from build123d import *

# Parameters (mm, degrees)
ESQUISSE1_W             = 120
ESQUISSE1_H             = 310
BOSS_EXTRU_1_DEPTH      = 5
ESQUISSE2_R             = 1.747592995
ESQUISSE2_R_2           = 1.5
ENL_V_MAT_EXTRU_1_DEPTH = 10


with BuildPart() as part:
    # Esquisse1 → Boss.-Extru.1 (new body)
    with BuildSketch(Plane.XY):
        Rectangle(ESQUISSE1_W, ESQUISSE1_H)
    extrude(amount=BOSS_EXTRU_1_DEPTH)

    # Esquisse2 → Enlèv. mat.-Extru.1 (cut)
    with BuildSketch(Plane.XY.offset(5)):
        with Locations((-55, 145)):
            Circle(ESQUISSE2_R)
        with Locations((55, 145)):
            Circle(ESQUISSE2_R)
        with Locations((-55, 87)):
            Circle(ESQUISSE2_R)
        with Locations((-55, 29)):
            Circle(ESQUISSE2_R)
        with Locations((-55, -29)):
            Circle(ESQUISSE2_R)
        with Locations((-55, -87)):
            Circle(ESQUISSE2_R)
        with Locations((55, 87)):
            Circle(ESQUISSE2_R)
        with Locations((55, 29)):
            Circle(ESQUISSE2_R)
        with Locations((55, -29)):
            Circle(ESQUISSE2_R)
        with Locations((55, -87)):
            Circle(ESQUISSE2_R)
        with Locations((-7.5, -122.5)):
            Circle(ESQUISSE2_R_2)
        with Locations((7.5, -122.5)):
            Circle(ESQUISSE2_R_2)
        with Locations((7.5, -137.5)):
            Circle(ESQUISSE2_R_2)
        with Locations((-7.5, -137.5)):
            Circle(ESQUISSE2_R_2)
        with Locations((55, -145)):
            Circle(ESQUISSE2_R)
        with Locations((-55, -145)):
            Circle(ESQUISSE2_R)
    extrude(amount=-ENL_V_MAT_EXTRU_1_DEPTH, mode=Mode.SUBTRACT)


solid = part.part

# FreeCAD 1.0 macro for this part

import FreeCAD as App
import Part
import Sketcher

V = App.Vector


def add_polygon(sketch, points):
    """Adds a closed chain of lines whose ends are joined by coincident constraints."""
    first, n = sketch.GeometryCount, len(points)
    for a, b in zip(points, points[1:] + points[:1]):
        sketch.addGeometry(Part.LineSegment(App.Vector(*a, 0), App.Vector(*b, 0)), False)
    for i in range(n):
        sketch.addConstraint(Sketcher.Constraint("Coincident", first + i, 2, first + (i + 1) % n, 1))

doc = App.newDocument("Part")
body = doc.addObject("PartDesign::Body", "Body")

# Sketch on XY plane
sketch1 = body.newObject("Sketcher::SketchObject", "Sketch")
sketch1.AttachmentSupport = (doc.getObject("XY_Plane"), [""])
sketch1.MapMode = "FlatFace"
add_polygon(sketch1, [(-60, 155), (-60, -155), (60, -155), (60, 155)])  # lines 0-3
sketch1.addConstraint([
    Sketcher.Constraint("Vertical", 0),
    Sketcher.Constraint("Horizontal", 1),
    Sketcher.Constraint("Vertical", 2),
    Sketcher.Constraint("Horizontal", 3),
    Sketcher.Constraint("Symmetric", 0, 2, 2, 2, -1, 1),
    Sketcher.Constraint("DistanceX", 1, 1, 1, 2, 120.0),
    Sketcher.Constraint("DistanceY", 0, 2, 0, 1, 310.0),
])
pad1 = body.newObject("PartDesign::Pad", "Pad")
pad1.Profile = sketch1
pad1.Length = 5

# Sketch on XY plane
sketch2 = body.newObject("Sketcher::SketchObject", "Sketch001")
sketch2.AttachmentSupport = (doc.getObject("XY_Plane"), [""])
sketch2.MapMode = "FlatFace"
sketch2.AttachmentOffset = App.Placement(V(0, 0, 5), App.Rotation())
sketch2.addGeometry([
    Part.Circle(V(-55, 145, 0), V(0, 0, 1), 1.7),  # 0
    Part.Circle(V(55, 145, 0), V(0, 0, 1), 1.7),  # 1
    Part.Circle(V(-55, 87, 0), V(0, 0, 1), 1.7),  # 2
    Part.Circle(V(-55, 29, 0), V(0, 0, 1), 1.7),  # 3
    Part.Circle(V(-55, -29, 0), V(0, 0, 1), 1.7),  # 4
    Part.Circle(V(-55, -87, 0), V(0, 0, 1), 1.7),  # 5
    Part.Circle(V(55, 87, 0), V(0, 0, 1), 1.7),  # 6
    Part.Circle(V(55, 29, 0), V(0, 0, 1), 1.7),  # 7
    Part.Circle(V(55, -29, 0), V(0, 0, 1), 1.7),  # 8
    Part.Circle(V(55, -87, 0), V(0, 0, 1), 1.7),  # 9
    Part.Circle(V(-7.5, -122.5, 0), V(0, 0, 1), 1.5),  # 10
    Part.Circle(V(7.5, -122.5, 0), V(0, 0, 1), 1.5),  # 11
    Part.Circle(V(7.5, -137.5, 0), V(0, 0, 1), 1.5),  # 12
    Part.Circle(V(-7.5, -137.5, 0), V(0, 0, 1), 1.5),  # 13
    Part.Circle(V(55, -145, 0), V(0, 0, 1), 1.7),  # 14
    Part.Circle(V(-55, -145, 0), V(0, 0, 1), 1.7),  # 15
], False)
sketch2.addConstraint([
    Sketcher.Constraint("Equal", 0, 1),
    Sketcher.Constraint("Equal", 1, 2),
    Sketcher.Constraint("Equal", 2, 3),
    Sketcher.Constraint("Equal", 3, 4),
    Sketcher.Constraint("Equal", 4, 5),
    Sketcher.Constraint("Equal", 5, 6),
    Sketcher.Constraint("Equal", 6, 7),
    Sketcher.Constraint("Equal", 7, 8),
    Sketcher.Constraint("Equal", 8, 9),
    Sketcher.Constraint("Equal", 10, 11),
    Sketcher.Constraint("Equal", 11, 12),
    Sketcher.Constraint("Equal", 12, 13),
    Sketcher.Constraint("Equal", 9, 14),
    Sketcher.Constraint("Equal", 14, 15),
    Sketcher.Constraint("Symmetric", 5, 3, 6, 3, -1, 1),
    Sketcher.Constraint("Symmetric", 4, 3, 7, 3, -1, 1),
    Sketcher.Constraint("Symmetric", 3, 3, 8, 3, -1, 1),
    Sketcher.Constraint("Symmetric", 2, 3, 9, 3, -1, 1),
    Sketcher.Constraint("Symmetric", 0, 3, 14, 3, -1, 1),
    Sketcher.Constraint("Symmetric", 1, 3, 15, 3, -1, 1),
    Sketcher.Constraint("Symmetric", 0, 3, 1, 3, -2),
    Sketcher.Constraint("Symmetric", 2, 3, 6, 3, -2),
    Sketcher.Constraint("Symmetric", 3, 3, 7, 3, -2),
    Sketcher.Constraint("Symmetric", 10, 3, 11, 3, -2),
    Sketcher.Constraint("Symmetric", 12, 3, 13, 3, -2),
    Sketcher.Constraint("Vertical", 0, 3, 2, 3),
    Sketcher.Constraint("Vertical", 2, 3, 3, 3),
    Sketcher.Constraint("Vertical", 11, 3, 12, 3),
    Sketcher.Constraint("Diameter", 10, 3.0),
    Sketcher.Constraint("DistanceX", 0, 3, -1, 1, 55.0),
    Sketcher.Constraint("DistanceY", -1, 1, 0, 3, 145.0),
    Sketcher.Constraint("DistanceY", -1, 1, 2, 3, 87.0),
    Sketcher.Constraint("DistanceY", -1, 1, 3, 3, 29.0),
    Sketcher.Constraint("DistanceX", 10, 3, 11, 3, 15.0),
    Sketcher.Constraint("DistanceY", 12, 3, 11, 3, 15.0),
    Sketcher.Constraint("DistanceY", 10, 3, -1, 1, 122.5),
    Sketcher.Constraint("Diameter", 0, 3.495186),
])
pocket1 = body.newObject("PartDesign::Pocket", "Pocket")
pocket1.Profile = sketch2
pocket1.Length = 10

doc.recompute()
